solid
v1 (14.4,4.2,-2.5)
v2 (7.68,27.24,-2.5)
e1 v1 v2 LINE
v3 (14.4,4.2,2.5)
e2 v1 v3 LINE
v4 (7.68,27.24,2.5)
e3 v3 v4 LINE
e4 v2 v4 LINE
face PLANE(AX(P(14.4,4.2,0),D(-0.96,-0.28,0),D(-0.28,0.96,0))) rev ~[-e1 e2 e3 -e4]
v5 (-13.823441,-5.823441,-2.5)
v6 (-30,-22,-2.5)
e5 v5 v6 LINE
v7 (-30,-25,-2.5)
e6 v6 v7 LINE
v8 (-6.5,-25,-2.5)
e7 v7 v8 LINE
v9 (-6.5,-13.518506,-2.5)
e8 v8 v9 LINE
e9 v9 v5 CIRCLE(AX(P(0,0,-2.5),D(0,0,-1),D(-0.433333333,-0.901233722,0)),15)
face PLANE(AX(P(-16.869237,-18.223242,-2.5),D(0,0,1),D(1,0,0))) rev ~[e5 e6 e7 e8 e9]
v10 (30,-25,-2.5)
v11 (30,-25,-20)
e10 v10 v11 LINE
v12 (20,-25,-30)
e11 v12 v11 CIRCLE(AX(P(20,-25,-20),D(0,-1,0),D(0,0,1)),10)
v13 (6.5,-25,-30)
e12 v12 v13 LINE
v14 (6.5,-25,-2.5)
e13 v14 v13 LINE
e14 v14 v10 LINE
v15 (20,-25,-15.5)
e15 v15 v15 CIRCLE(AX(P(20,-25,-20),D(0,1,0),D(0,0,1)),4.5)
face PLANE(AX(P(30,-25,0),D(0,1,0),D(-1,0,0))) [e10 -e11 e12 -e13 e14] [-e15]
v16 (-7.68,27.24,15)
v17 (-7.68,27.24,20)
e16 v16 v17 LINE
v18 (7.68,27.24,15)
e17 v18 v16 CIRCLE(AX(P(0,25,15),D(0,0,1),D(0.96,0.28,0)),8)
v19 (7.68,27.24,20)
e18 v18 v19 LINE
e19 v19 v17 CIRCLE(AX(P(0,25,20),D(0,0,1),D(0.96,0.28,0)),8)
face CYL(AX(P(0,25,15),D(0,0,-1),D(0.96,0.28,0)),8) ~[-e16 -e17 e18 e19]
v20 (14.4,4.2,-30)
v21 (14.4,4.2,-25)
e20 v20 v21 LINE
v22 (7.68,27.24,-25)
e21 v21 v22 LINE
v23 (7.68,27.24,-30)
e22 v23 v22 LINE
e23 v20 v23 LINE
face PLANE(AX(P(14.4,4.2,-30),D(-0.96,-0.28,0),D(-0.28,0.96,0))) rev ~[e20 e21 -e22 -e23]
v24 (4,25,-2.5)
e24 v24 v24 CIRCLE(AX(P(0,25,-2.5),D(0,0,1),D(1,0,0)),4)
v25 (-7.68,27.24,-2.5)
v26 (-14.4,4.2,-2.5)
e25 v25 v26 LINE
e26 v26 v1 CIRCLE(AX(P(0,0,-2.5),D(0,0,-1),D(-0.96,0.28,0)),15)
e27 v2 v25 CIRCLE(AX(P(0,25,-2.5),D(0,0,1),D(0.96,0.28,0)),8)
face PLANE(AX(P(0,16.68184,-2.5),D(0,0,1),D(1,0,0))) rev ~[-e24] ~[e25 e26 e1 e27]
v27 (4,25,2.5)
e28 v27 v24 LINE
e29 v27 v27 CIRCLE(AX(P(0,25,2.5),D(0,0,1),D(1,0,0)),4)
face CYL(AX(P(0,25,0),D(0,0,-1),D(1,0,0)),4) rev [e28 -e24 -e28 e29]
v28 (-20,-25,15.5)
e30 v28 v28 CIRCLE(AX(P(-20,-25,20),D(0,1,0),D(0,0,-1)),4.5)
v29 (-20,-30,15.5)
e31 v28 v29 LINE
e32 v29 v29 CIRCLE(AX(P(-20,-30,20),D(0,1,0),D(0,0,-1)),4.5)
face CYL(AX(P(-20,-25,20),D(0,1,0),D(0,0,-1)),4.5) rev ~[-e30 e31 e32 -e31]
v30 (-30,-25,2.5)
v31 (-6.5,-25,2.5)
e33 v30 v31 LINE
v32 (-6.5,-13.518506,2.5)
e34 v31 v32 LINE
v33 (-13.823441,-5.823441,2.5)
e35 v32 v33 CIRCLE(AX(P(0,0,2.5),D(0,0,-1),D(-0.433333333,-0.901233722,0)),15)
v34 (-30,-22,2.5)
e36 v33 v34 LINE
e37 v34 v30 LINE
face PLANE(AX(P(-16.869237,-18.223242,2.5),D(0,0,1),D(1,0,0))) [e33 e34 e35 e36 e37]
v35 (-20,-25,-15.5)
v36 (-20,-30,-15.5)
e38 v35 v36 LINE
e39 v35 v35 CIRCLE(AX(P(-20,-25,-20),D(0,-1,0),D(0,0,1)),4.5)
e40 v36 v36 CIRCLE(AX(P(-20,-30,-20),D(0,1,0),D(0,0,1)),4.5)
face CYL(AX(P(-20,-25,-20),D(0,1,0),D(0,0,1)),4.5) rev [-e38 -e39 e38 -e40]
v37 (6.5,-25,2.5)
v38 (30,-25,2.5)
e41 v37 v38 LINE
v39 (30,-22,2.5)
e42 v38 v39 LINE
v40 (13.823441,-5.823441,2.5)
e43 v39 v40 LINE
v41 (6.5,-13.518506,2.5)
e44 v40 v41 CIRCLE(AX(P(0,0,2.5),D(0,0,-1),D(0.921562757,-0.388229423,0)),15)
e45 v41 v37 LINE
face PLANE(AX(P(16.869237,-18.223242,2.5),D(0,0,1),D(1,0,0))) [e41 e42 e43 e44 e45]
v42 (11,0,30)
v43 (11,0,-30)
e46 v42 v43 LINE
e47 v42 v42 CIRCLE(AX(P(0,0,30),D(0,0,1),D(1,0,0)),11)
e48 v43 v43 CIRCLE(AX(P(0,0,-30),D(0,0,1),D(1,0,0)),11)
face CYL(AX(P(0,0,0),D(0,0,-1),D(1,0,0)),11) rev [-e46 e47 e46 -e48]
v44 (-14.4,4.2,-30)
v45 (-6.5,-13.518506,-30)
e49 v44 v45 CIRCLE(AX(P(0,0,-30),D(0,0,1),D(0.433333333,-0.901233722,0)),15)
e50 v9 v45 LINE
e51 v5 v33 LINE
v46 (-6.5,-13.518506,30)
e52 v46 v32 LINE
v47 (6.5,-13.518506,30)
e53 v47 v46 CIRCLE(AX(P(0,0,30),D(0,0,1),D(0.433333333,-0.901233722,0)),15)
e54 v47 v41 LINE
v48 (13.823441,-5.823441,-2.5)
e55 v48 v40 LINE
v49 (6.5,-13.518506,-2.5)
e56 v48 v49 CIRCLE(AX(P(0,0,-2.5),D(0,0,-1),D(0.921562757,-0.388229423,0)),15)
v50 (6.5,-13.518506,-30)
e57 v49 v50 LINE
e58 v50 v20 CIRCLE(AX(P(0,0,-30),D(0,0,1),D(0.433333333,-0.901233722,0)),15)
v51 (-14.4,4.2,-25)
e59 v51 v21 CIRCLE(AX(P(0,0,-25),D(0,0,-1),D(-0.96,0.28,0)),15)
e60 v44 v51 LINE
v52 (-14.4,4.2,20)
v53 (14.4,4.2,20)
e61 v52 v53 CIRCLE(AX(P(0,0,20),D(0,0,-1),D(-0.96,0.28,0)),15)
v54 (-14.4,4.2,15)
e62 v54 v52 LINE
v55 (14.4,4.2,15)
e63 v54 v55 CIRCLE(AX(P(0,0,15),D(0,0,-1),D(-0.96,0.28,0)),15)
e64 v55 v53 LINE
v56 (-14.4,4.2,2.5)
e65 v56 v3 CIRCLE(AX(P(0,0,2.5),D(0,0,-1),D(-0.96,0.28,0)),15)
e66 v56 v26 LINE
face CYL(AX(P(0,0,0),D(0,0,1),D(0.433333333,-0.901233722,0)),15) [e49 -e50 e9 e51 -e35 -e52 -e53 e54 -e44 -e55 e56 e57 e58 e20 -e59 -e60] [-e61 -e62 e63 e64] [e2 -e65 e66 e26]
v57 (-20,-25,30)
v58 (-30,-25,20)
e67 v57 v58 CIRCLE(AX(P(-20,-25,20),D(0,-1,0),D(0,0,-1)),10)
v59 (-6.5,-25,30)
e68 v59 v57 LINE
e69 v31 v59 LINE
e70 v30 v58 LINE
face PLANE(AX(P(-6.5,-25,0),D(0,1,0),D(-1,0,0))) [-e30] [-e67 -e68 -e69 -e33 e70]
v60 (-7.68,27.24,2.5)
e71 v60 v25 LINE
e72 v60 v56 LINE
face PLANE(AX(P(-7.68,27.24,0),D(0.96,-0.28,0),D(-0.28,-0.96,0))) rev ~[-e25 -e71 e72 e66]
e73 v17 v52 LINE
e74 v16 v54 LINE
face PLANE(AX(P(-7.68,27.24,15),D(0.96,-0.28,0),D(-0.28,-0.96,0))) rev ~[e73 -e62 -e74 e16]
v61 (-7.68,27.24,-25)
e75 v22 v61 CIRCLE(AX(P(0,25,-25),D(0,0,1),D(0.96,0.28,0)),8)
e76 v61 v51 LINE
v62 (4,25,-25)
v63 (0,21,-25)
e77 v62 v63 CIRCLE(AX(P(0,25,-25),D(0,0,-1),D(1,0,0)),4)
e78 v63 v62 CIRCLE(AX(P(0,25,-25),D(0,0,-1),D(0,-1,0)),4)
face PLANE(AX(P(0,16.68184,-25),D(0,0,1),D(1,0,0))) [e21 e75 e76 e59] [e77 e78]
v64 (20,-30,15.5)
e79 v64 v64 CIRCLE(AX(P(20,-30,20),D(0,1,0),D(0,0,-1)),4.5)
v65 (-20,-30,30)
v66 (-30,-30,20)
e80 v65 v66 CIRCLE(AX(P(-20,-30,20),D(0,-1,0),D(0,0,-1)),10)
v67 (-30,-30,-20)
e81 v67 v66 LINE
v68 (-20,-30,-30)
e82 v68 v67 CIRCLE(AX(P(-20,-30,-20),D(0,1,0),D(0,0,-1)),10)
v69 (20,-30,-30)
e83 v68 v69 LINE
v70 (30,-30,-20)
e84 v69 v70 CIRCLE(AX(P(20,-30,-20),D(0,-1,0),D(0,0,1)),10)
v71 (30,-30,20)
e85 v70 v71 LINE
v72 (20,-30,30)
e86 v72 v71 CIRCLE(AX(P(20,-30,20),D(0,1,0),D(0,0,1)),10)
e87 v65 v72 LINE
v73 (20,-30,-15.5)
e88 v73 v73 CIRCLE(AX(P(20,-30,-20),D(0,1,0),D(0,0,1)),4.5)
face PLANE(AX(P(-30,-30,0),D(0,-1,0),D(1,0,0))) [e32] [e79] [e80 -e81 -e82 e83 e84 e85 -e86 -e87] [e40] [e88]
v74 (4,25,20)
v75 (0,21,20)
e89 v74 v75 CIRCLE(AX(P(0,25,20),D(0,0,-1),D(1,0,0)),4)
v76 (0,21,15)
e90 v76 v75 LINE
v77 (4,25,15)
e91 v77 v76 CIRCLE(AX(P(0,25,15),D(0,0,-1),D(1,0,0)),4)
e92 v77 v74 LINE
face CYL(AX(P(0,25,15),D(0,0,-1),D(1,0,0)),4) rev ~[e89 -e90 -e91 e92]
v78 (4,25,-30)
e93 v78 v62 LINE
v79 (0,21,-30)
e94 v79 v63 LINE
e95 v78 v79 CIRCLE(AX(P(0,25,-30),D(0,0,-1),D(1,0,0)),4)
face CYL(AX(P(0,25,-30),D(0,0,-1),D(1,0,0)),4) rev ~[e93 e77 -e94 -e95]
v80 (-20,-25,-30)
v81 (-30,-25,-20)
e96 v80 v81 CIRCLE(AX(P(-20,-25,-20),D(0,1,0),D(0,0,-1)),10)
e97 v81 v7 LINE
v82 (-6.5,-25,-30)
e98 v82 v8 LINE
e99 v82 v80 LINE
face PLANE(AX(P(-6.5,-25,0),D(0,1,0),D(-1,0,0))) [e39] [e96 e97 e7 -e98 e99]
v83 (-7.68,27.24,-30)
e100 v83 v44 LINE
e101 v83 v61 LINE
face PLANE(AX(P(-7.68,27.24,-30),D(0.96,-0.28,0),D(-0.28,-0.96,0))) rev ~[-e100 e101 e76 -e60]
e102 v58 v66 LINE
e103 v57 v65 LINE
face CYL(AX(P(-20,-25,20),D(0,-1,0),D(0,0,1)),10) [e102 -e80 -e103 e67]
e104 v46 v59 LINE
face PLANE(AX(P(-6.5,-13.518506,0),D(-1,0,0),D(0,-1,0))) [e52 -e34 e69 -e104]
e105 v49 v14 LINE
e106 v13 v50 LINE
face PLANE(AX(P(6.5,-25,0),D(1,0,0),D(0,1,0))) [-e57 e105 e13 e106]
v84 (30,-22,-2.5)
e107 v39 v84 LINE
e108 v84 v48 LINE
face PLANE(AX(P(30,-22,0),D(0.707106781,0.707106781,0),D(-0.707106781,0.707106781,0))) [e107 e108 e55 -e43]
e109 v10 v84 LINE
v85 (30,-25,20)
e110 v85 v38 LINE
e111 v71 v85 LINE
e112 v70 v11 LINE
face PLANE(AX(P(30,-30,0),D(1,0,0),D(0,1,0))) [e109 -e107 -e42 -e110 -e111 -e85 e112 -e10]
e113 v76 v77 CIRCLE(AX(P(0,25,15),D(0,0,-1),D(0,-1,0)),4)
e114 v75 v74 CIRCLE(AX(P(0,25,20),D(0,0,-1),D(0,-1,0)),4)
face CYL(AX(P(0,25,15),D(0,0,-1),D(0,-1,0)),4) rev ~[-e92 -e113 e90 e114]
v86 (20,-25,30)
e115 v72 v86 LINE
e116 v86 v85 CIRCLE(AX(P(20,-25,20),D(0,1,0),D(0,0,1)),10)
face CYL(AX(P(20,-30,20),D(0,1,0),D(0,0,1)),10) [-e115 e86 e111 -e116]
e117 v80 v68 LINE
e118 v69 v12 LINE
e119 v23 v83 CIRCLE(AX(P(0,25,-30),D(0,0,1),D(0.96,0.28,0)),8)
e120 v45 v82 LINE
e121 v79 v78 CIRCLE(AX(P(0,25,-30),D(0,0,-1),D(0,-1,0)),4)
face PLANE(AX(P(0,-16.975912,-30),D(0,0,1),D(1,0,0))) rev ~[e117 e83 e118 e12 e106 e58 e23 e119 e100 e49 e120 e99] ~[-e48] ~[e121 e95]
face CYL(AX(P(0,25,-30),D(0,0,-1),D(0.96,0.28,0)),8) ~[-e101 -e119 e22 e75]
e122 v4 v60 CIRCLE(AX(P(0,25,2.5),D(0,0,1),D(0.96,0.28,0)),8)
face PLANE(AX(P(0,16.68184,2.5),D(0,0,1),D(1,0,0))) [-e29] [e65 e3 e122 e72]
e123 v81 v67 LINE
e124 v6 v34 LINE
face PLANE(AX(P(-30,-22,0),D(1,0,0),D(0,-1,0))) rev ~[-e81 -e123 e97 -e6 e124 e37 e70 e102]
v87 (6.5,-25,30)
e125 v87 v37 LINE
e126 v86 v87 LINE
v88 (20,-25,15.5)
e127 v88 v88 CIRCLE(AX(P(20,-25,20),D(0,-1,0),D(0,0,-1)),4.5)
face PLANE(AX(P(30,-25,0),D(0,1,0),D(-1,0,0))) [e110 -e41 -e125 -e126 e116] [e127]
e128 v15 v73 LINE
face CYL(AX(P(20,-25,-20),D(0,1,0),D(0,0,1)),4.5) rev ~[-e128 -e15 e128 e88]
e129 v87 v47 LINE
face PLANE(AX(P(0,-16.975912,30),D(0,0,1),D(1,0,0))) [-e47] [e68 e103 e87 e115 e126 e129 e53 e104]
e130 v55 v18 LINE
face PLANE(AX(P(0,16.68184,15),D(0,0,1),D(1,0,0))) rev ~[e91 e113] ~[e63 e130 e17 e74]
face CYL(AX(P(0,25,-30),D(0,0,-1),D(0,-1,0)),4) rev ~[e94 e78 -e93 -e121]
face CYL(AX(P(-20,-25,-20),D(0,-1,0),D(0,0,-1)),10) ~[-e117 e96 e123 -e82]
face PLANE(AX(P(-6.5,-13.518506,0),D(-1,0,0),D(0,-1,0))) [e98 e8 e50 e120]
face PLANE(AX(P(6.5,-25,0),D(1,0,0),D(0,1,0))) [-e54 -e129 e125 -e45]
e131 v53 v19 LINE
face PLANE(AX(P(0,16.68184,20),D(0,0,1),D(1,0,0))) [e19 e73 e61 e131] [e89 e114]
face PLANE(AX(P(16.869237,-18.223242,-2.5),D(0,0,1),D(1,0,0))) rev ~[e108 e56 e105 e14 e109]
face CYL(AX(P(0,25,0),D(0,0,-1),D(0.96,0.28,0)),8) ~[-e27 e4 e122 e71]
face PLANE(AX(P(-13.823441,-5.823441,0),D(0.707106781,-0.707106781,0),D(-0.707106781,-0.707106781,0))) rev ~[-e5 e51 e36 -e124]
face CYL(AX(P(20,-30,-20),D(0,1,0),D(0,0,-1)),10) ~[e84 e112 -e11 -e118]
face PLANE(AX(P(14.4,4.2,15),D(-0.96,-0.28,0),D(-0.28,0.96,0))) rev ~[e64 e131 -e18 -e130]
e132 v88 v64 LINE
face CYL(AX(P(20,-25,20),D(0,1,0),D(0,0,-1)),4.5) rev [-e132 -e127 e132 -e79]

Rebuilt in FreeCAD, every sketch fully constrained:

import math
import FreeCAD as App
import Part
import Sketcher


def edges_at(feature, points):
    """Names of the edges that pass closest to the given points."""
    edges = feature.Shape.Edges
    near = lambda p: min(range(len(edges)), key=lambda i: edges[i].distToShape(Part.Vertex(*p))[0])
    return sorted({f"Edge{near(p) + 1}" for p in points})

doc = App.newDocument("Part")
body = doc.addObject("PartDesign::Body", "Body")

sketch1 = body.newObject("Sketcher::SketchObject", "Sketch")
sketch1.AttachmentSupport = (doc.getObject("XY_Plane"), [""])
sketch1.MapMode = "FlatFace"
sketch1.addGeometry([
    Part.LineSegment(App.Vector(-6, -14, 0), App.Vector(-6, -25, 0)),
    Part.LineSegment(App.Vector(-6, -25, 0), App.Vector(-30, -25, 0)),
    Part.LineSegment(App.Vector(-30, -25, 0), App.Vector(-30, -30, 0)),
    Part.LineSegment(App.Vector(-30, -30, 0), App.Vector(30, -30, 0)),
    Part.LineSegment(App.Vector(30, -30, 0), App.Vector(30, -25, 0)),
    Part.LineSegment(App.Vector(30, -25, 0), App.Vector(6, -25, 0)),
    Part.LineSegment(App.Vector(6, -25, 0), App.Vector(6, -14, 0)),
    Part.ArcOfCircle(Part.Circle(App.Vector(0, 0, 0), App.Vector(0, 0, 1), 15), math.radians(-64), math.radians(244)),
    Part.Circle(App.Vector(0, 0, 0), App.Vector(0, 0, 1), 11),
], False)
sketch1.addConstraint([
    Sketcher.Constraint("Coincident", 0, 2, 1, 1),
    Sketcher.Constraint("Coincident", 1, 2, 2, 1),
    Sketcher.Constraint("Coincident", 2, 2, 3, 1),
    Sketcher.Constraint("Coincident", 3, 2, 4, 1),
    Sketcher.Constraint("Coincident", 4, 2, 5, 1),
    Sketcher.Constraint("Coincident", 5, 2, 6, 1),
    Sketcher.Constraint("Coincident", 6, 2, 7, 1),
    Sketcher.Constraint("Coincident", 7, 2, 0, 1),
    Sketcher.Constraint("Vertical", 0),
    Sketcher.Constraint("Horizontal", 1),
    Sketcher.Constraint("Vertical", 2),
    Sketcher.Constraint("Horizontal", 3),
    Sketcher.Constraint("Vertical", 4),
    Sketcher.Constraint("Horizontal", 5),
    Sketcher.Constraint("Vertical", 6),
    Sketcher.Constraint("Coincident", 7, 3, -1, 1),
    Sketcher.Constraint("Coincident", 8, 3, -1, 1),
    Sketcher.Constraint("Symmetric", 1, 2, 4, 2, -2),
    Sketcher.Constraint("Horizontal", 6, 2, 7, 2),
    Sketcher.Constraint("Diameter", 8, 22.0),
    Sketcher.Constraint("Radius", 7, 15.0),
    Sketcher.Constraint("DistanceX", 3, 1, 3, 2, 60.0),
    Sketcher.Constraint("DistanceY", 2, 2, 2, 1, 5.0),
    Sketcher.Constraint("DistanceX", 1, 2, 1, 1, 23.5),
    Sketcher.Constraint("DistanceY", 0, 2, -1, 1, 25.0),
])
pad1 = body.newObject("PartDesign::Pad", "Pad")
pad1.Profile = sketch1
pad1.Length = 60
pad1.Midplane = True

sketch2 = body.newObject("Sketcher::SketchObject", "Sketch001")
sketch2.AttachmentSupport = (doc.getObject("XY_Plane"), [""])
sketch2.MapMode = "FlatFace"
sketch2.addGeometry([
    Part.ArcOfCircle(Part.Circle(App.Vector(0, 0, 0), App.Vector(0, 0, 1), 15), math.radians(16), math.radians(164)),
    Part.LineSegment(App.Vector(14.4, 4.2, 0), App.Vector(7.7, 27.2, 0)),
    Part.ArcOfCircle(Part.Circle(App.Vector(0, 25, 0), App.Vector(0, 0, 1), 8), math.radians(16), math.radians(164)),
    Part.LineSegment(App.Vector(-7.7, 27.2, 0), App.Vector(-14.4, 4.2, 0)),
    Part.Circle(App.Vector(0, 25, 0), App.Vector(0, 0, 1), 4),
    Part.ArcOfCircle(Part.Circle(App.Vector(0, 0, 0), App.Vector(0, 0, 1), 15), math.radians(-157), math.radians(-116)),
    Part.LineSegment(App.Vector(-13.8, -5.8, 0), App.Vector(-30, -22, 0)),
    Part.LineSegment(App.Vector(-30, -22, 0), App.Vector(-30, -25, 0)),
    Part.LineSegment(App.Vector(-30, -25, 0), App.Vector(-6.5, -25, 0)),
    Part.LineSegment(App.Vector(-6.5, -25, 0), App.Vector(-6.5, -13.5, 0)),
    Part.LineSegment(App.Vector(30, -22, 0), App.Vector(13.8, -5.8, 0)),
    Part.ArcOfCircle(Part.Circle(App.Vector(0, 0, 0), App.Vector(0, 0, 1), 15), math.radians(-64), math.radians(-23)),
    Part.LineSegment(App.Vector(6.5, -13.5, 0), App.Vector(6.5, -25, 0)),
    Part.LineSegment(App.Vector(6.5, -25, 0), App.Vector(30, -25, 0)),
    Part.LineSegment(App.Vector(30, -25, 0), App.Vector(30, -22, 0)),
], False)
sketch2.addConstraint([
    Sketcher.Constraint("Tangent", 0, 1, 1, 1),
    Sketcher.Constraint("Tangent", 1, 2, 2, 1),
    Sketcher.Constraint("Tangent", 2, 2, 3, 1),
    Sketcher.Constraint("Tangent", 3, 2, 0, 2),
    Sketcher.Constraint("Coincident", 5, 1, 6, 1),
    Sketcher.Constraint("Coincident", 6, 2, 7, 1),
    Sketcher.Constraint("Coincident", 7, 2, 8, 1),
    Sketcher.Constraint("Coincident", 8, 2, 9, 1),
    Sketcher.Constraint("Coincident", 9, 2, 5, 2),
    Sketcher.Constraint("Coincident", 10, 2, 11, 2),
    Sketcher.Constraint("Coincident", 11, 1, 12, 1),
    Sketcher.Constraint("Coincident", 12, 2, 13, 1),
    Sketcher.Constraint("Coincident", 13, 2, 14, 1),
    Sketcher.Constraint("Coincident", 14, 2, 10, 1),
    Sketcher.Constraint("Vertical", 7),
    Sketcher.Constraint("Horizontal", 8),
    Sketcher.Constraint("Vertical", 9),
    Sketcher.Constraint("Vertical", 12),
    Sketcher.Constraint("Horizontal", 13),
    Sketcher.Constraint("Vertical", 14),
    Sketcher.Constraint("Coincident", 0, 3, -1, 1),
    Sketcher.Constraint("Coincident", 5, 3, -1, 1),
    Sketcher.Constraint("Coincident", 11, 3, -1, 1),
    Sketcher.Constraint("Coincident", 4, 3, 2, 3),
    Sketcher.Constraint("Equal", 0, 5),
    Sketcher.Constraint("Equal", 5, 11),
    Sketcher.Constraint("Symmetric", 8, 2, 12, 2, -2),
    Sketcher.Constraint("Symmetric", 6, 2, 14, 2, -2),
    Sketcher.Constraint("PointOnObject", 2, 3, -2),
    Sketcher.Constraint("Perpendicular", 6, 10),
    Sketcher.Constraint("Horizontal", 5, 1, 10, 2),
    Sketcher.Constraint("Diameter", 4, 8.0),
    Sketcher.Constraint("Radius", 0, 15.0),
    Sketcher.Constraint("Radius", 2, 8.0),
    Sketcher.Constraint("DistanceY", 7, 2, 7, 1, 3.0),
    Sketcher.Constraint("Distance", 1, 24.0),
    Sketcher.Constraint("DistanceX", 8, 1, 8, 2, 23.5),
    Sketcher.Constraint("DistanceX", 6, 2, -1, 1, 30.0),
    Sketcher.Constraint("DistanceY", 6, 2, -1, 1, 22.0),
])
pad2 = body.newObject("PartDesign::Pad", "Pad001")
pad2.Profile = sketch2
pad2.Length = 5
pad2.Midplane = True

sketch3 = body.newObject("Sketcher::SketchObject", "Sketch002")
sketch3.AttachmentSupport = (doc.getObject("XY_Plane"), [""])
sketch3.MapMode = "FlatFace"
sketch3.AttachmentOffset = App.Placement(App.Vector(0, 0, 15), App.Rotation())
sketch3.addGeometry([
    Part.ArcOfCircle(Part.Circle(App.Vector(0, 0, 0), App.Vector(0, 0, 1), 15), math.radians(16), math.radians(164)),
    Part.LineSegment(App.Vector(14.4, 4.2, 0), App.Vector(7.7, 27.2, 0)),
    Part.ArcOfCircle(Part.Circle(App.Vector(0, 25, 0), App.Vector(0, 0, 1), 8), math.radians(16), math.radians(164)),
    Part.LineSegment(App.Vector(-7.7, 27.2, 0), App.Vector(-14.4, 4.2, 0)),
    Part.ArcOfCircle(Part.Circle(App.Vector(0, 25, 0), App.Vector(0, 0, 1), 4), math.radians(0), math.radians(270)),
    Part.ArcOfCircle(Part.Circle(App.Vector(0, 25, 0), App.Vector(0, 0, 1), 4), math.radians(-90), math.radians(0)),
], False)
sketch3.addConstraint([
    Sketcher.Constraint("Tangent", 0, 1, 1, 1),
    Sketcher.Constraint("Tangent", 1, 2, 2, 1),
    Sketcher.Constraint("Tangent", 2, 2, 3, 1),
    Sketcher.Constraint("Tangent", 3, 2, 0, 2),
    Sketcher.Constraint("Tangent", 4, 1, 5, 2),
    Sketcher.Constraint("Coincident", 5, 1, 4, 2),
    Sketcher.Constraint("Coincident", 0, 3, -1, 1),
    Sketcher.Constraint("Coincident", 4, 3, 2, 3),
    Sketcher.Constraint("PointOnObject", 2, 3, -2),
    Sketcher.Constraint("PointOnObject", 5, 1, -2),
    Sketcher.Constraint("Horizontal", 5, 3, 4, 1),
    Sketcher.Constraint("Radius", 0, 15.0),
    Sketcher.Constraint("Radius", 2, 8.0),
    Sketcher.Constraint("Radius", 4, 4.0),
    Sketcher.Constraint("Distance", 1, 24.0),
])
pad3 = body.newObject("PartDesign::Pad", "Pad002")
pad3.Profile = sketch3
pad3.Length = 5

sketch4 = body.newObject("Sketcher::SketchObject", "Sketch003")
sketch4.AttachmentSupport = (doc.getObject("XY_Plane"), [""])
sketch4.MapMode = "FlatFace"
sketch4.AttachmentOffset = App.Placement(App.Vector(0, 0, -30), App.Rotation())
sketch4.addGeometry([
    Part.ArcOfCircle(Part.Circle(App.Vector(0, 0, 0), App.Vector(0, 0, 1), 15), math.radians(16), math.radians(164)),
    Part.LineSegment(App.Vector(14.4, 4.2, 0), App.Vector(7.7, 27.2, 0)),
    Part.ArcOfCircle(Part.Circle(App.Vector(0, 25, 0), App.Vector(0, 0, 1), 8), math.radians(16), math.radians(164)),
    Part.LineSegment(App.Vector(-7.7, 27.2, 0), App.Vector(-14.4, 4.2, 0)),
    Part.ArcOfCircle(Part.Circle(App.Vector(0, 25, 0), App.Vector(0, 0, 1), 4), math.radians(0), math.radians(270)),
    Part.ArcOfCircle(Part.Circle(App.Vector(0, 25, 0), App.Vector(0, 0, 1), 4), math.radians(-90), math.radians(0)),
], False)
sketch4.addConstraint([
    Sketcher.Constraint("Tangent", 0, 1, 1, 1),
    Sketcher.Constraint("Tangent", 1, 2, 2, 1),
    Sketcher.Constraint("Tangent", 2, 2, 3, 1),
    Sketcher.Constraint("Tangent", 3, 2, 0, 2),
    Sketcher.Constraint("Tangent", 4, 1, 5, 2),
    Sketcher.Constraint("Coincident", 5, 1, 4, 2),
    Sketcher.Constraint("Coincident", 0, 3, -1, 1),
    Sketcher.Constraint("Coincident", 4, 3, 2, 3),
    Sketcher.Constraint("PointOnObject", 2, 3, -2),
    Sketcher.Constraint("PointOnObject", 5, 1, -2),
    Sketcher.Constraint("Horizontal", 5, 3, 4, 1),
    Sketcher.Constraint("Radius", 0, 15.0),
    Sketcher.Constraint("Radius", 2, 8.0),
    Sketcher.Constraint("Radius", 4, 4.0),
    Sketcher.Constraint("Distance", 1, 24.0),
])
pad4 = body.newObject("PartDesign::Pad", "Pad003")
pad4.Profile = sketch4
pad4.Length = 5

sketch5 = body.newObject("Sketcher::SketchObject", "Sketch004")
sketch5.AttachmentSupport = (doc.getObject("XZ_Plane"), [""])
sketch5.MapMode = "FlatFace"
sketch5.AttachmentOffset = App.Placement(App.Vector(0, 0, 25), App.Rotation())
sketch5.addGeometry(Part.Circle(App.Vector(20, -20, 0), App.Vector(0, 0, 1), 4.5), False)
sketch5.addConstraint([
    Sketcher.Constraint("Diameter", 0, 9.0),
    Sketcher.Constraint("DistanceX", -1, 1, 0, 3, 20.0),
    Sketcher.Constraint("DistanceY", 0, 3, -1, 1, 20.0),
])
pocket1 = body.newObject("PartDesign::Pocket", "Pocket")
pocket1.Profile = sketch5
pocket1.Type = "ThroughAll"
pocket1.Reversed = True
doc.recompute()

mirrored = body.newObject("PartDesign::Mirrored", "Mirrored")
mirrored.Originals = [pocket1]
mirrored.MirrorPlane = (doc.getObject("XY_Plane"), [""])
body.Tip = mirrored
doc.recompute()

mirrored2 = body.newObject("PartDesign::Mirrored", "Mirrored001")
mirrored2.Originals = [pocket1]
mirrored2.MirrorPlane = (doc.getObject("YZ_Plane"), [""])
body.Tip = mirrored2

sketch6 = body.newObject("Sketcher::SketchObject", "Sketch005")
sketch6.AttachmentSupport = (doc.getObject("XZ_Plane"), [""])
sketch6.MapMode = "FlatFace"
sketch6.AttachmentOffset = App.Placement(App.Vector(0, 0, 25), App.Rotation())
sketch6.addGeometry(Part.Circle(App.Vector(-20, 20, 0), App.Vector(0, 0, 1), 4.5), False)
sketch6.addConstraint([
    Sketcher.Constraint("Diameter", 0, 9.0),
    Sketcher.Constraint("DistanceX", 0, 3, -1, 1, 20.0),
    Sketcher.Constraint("DistanceY", -1, 1, 0, 3, 20.0),
])
pocket2 = body.newObject("PartDesign::Pocket", "Pocket001")
pocket2.Profile = sketch6
pocket2.Type = "ThroughAll"
pocket2.Reversed = True
doc.recompute()

fillet = body.newObject("PartDesign::Fillet", "Fillet")
fillet.Base = (pocket2, edges_at(pocket2, [
    (30, -27.5, -30),
    (-30, -27.5, -30),
    (-30, -27.5, 30),
    (30, -27.5, 30),
]))
fillet.Radius = 10

doc.recompute()
